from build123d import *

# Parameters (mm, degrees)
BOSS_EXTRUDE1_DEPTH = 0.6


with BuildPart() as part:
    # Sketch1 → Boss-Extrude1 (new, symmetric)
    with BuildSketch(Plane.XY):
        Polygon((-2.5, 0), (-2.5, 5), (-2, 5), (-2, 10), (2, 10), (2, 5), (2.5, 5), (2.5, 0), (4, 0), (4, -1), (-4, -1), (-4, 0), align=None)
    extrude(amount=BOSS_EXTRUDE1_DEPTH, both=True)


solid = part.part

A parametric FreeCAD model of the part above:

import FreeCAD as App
import Part
import Sketcher

V = App.Vector
Q = App.Units.Quantity


def add_polygon(sketch, points):
    """Adds a closed chain of lines whose ends are joined by coincident constraints."""
    first, n = sketch.GeometryCount, len(points)
    for a, b in zip(points, points[1:] + points[:1]):
        sketch.addGeometry(Part.LineSegment(App.Vector(*a, 0), App.Vector(*b, 0)), False)
    for i in range(n):
        sketch.addConstraint(Sketcher.Constraint("Coincident", first + i, 2, first + (i + 1) % n, 1))

doc = App.newDocument("Part")
body = doc.addObject("PartDesign::Body", "Body")

sketch1 = doc.addObject("Sketcher::SketchObject", "Sketch")
body.addObject(sketch1)
sketch1.AttachmentSupport = (doc.XY_Plane, [""])
sketch1.MapMode = "FlatFace"
add_polygon(sketch1, [(-2.5, 5), (-2.5, 0), (-4, 0), (-4, -1), (4, -1), (4, 0), (2.5, 0), (2.5, 5), (2, 5), (2, 10), (-2, 10), (-2, 5)])
sketch1.addConstraint(Sketcher.Constraint("Vertical", 0))
sketch1.addConstraint(Sketcher.Constraint("Horizontal", 1))
sketch1.addConstraint(Sketcher.Constraint("Vertical", 2))
sketch1.addConstraint(Sketcher.Constraint("Horizontal", 3))
sketch1.addConstraint(Sketcher.Constraint("Vertical", 4))
sketch1.addConstraint(Sketcher.Constraint("Horizontal", 5))
sketch1.addConstraint(Sketcher.Constraint("Vertical", 6))
sketch1.addConstraint(Sketcher.Constraint("Horizontal", 7))
sketch1.addConstraint(Sketcher.Constraint("Vertical", 8))
sketch1.addConstraint(Sketcher.Constraint("Horizontal", 9))
sketch1.addConstraint(Sketcher.Constraint("Vertical", 10))
sketch1.addConstraint(Sketcher.Constraint("Horizontal", 11))
sketch1.addConstraint(Sketcher.Constraint("Symmetric", 1, 2, 4, 2, -1, 1))
sketch1.addConstraint(Sketcher.Constraint("Symmetric", 0, 2, 5, 2, -2))
sketch1.addConstraint(Sketcher.Constraint("Symmetric", 7, 2, 10, 2, -2))
sketch1.addConstraint(Sketcher.Constraint("Equal", 6, 8))
sketch1.addConstraint(Sketcher.Constraint("DistanceX", 3, 1, 3, 2, Q("8 mm")))
sketch1.addConstraint(Sketcher.Constraint("DistanceX", 9, 2, 9, 1, Q("4 mm")))
sketch1.addConstraint(Sketcher.Constraint("DistanceY", 0, 2, 0, 1, Q("5 mm")))
sketch1.addConstraint(Sketcher.Constraint("DistanceY", 2, 2, 2, 1, Q("1 mm")))
sketch1.addConstraint(Sketcher.Constraint("DistanceX", 1, 2, 1, 1, Q("1.5 mm")))
pad1 = doc.addObject("PartDesign::Pad", "Pad")
body.addObject(pad1)
pad1.Profile = sketch1
pad1.Length = 1.2
pad1.Midplane = True

doc.recompute()
